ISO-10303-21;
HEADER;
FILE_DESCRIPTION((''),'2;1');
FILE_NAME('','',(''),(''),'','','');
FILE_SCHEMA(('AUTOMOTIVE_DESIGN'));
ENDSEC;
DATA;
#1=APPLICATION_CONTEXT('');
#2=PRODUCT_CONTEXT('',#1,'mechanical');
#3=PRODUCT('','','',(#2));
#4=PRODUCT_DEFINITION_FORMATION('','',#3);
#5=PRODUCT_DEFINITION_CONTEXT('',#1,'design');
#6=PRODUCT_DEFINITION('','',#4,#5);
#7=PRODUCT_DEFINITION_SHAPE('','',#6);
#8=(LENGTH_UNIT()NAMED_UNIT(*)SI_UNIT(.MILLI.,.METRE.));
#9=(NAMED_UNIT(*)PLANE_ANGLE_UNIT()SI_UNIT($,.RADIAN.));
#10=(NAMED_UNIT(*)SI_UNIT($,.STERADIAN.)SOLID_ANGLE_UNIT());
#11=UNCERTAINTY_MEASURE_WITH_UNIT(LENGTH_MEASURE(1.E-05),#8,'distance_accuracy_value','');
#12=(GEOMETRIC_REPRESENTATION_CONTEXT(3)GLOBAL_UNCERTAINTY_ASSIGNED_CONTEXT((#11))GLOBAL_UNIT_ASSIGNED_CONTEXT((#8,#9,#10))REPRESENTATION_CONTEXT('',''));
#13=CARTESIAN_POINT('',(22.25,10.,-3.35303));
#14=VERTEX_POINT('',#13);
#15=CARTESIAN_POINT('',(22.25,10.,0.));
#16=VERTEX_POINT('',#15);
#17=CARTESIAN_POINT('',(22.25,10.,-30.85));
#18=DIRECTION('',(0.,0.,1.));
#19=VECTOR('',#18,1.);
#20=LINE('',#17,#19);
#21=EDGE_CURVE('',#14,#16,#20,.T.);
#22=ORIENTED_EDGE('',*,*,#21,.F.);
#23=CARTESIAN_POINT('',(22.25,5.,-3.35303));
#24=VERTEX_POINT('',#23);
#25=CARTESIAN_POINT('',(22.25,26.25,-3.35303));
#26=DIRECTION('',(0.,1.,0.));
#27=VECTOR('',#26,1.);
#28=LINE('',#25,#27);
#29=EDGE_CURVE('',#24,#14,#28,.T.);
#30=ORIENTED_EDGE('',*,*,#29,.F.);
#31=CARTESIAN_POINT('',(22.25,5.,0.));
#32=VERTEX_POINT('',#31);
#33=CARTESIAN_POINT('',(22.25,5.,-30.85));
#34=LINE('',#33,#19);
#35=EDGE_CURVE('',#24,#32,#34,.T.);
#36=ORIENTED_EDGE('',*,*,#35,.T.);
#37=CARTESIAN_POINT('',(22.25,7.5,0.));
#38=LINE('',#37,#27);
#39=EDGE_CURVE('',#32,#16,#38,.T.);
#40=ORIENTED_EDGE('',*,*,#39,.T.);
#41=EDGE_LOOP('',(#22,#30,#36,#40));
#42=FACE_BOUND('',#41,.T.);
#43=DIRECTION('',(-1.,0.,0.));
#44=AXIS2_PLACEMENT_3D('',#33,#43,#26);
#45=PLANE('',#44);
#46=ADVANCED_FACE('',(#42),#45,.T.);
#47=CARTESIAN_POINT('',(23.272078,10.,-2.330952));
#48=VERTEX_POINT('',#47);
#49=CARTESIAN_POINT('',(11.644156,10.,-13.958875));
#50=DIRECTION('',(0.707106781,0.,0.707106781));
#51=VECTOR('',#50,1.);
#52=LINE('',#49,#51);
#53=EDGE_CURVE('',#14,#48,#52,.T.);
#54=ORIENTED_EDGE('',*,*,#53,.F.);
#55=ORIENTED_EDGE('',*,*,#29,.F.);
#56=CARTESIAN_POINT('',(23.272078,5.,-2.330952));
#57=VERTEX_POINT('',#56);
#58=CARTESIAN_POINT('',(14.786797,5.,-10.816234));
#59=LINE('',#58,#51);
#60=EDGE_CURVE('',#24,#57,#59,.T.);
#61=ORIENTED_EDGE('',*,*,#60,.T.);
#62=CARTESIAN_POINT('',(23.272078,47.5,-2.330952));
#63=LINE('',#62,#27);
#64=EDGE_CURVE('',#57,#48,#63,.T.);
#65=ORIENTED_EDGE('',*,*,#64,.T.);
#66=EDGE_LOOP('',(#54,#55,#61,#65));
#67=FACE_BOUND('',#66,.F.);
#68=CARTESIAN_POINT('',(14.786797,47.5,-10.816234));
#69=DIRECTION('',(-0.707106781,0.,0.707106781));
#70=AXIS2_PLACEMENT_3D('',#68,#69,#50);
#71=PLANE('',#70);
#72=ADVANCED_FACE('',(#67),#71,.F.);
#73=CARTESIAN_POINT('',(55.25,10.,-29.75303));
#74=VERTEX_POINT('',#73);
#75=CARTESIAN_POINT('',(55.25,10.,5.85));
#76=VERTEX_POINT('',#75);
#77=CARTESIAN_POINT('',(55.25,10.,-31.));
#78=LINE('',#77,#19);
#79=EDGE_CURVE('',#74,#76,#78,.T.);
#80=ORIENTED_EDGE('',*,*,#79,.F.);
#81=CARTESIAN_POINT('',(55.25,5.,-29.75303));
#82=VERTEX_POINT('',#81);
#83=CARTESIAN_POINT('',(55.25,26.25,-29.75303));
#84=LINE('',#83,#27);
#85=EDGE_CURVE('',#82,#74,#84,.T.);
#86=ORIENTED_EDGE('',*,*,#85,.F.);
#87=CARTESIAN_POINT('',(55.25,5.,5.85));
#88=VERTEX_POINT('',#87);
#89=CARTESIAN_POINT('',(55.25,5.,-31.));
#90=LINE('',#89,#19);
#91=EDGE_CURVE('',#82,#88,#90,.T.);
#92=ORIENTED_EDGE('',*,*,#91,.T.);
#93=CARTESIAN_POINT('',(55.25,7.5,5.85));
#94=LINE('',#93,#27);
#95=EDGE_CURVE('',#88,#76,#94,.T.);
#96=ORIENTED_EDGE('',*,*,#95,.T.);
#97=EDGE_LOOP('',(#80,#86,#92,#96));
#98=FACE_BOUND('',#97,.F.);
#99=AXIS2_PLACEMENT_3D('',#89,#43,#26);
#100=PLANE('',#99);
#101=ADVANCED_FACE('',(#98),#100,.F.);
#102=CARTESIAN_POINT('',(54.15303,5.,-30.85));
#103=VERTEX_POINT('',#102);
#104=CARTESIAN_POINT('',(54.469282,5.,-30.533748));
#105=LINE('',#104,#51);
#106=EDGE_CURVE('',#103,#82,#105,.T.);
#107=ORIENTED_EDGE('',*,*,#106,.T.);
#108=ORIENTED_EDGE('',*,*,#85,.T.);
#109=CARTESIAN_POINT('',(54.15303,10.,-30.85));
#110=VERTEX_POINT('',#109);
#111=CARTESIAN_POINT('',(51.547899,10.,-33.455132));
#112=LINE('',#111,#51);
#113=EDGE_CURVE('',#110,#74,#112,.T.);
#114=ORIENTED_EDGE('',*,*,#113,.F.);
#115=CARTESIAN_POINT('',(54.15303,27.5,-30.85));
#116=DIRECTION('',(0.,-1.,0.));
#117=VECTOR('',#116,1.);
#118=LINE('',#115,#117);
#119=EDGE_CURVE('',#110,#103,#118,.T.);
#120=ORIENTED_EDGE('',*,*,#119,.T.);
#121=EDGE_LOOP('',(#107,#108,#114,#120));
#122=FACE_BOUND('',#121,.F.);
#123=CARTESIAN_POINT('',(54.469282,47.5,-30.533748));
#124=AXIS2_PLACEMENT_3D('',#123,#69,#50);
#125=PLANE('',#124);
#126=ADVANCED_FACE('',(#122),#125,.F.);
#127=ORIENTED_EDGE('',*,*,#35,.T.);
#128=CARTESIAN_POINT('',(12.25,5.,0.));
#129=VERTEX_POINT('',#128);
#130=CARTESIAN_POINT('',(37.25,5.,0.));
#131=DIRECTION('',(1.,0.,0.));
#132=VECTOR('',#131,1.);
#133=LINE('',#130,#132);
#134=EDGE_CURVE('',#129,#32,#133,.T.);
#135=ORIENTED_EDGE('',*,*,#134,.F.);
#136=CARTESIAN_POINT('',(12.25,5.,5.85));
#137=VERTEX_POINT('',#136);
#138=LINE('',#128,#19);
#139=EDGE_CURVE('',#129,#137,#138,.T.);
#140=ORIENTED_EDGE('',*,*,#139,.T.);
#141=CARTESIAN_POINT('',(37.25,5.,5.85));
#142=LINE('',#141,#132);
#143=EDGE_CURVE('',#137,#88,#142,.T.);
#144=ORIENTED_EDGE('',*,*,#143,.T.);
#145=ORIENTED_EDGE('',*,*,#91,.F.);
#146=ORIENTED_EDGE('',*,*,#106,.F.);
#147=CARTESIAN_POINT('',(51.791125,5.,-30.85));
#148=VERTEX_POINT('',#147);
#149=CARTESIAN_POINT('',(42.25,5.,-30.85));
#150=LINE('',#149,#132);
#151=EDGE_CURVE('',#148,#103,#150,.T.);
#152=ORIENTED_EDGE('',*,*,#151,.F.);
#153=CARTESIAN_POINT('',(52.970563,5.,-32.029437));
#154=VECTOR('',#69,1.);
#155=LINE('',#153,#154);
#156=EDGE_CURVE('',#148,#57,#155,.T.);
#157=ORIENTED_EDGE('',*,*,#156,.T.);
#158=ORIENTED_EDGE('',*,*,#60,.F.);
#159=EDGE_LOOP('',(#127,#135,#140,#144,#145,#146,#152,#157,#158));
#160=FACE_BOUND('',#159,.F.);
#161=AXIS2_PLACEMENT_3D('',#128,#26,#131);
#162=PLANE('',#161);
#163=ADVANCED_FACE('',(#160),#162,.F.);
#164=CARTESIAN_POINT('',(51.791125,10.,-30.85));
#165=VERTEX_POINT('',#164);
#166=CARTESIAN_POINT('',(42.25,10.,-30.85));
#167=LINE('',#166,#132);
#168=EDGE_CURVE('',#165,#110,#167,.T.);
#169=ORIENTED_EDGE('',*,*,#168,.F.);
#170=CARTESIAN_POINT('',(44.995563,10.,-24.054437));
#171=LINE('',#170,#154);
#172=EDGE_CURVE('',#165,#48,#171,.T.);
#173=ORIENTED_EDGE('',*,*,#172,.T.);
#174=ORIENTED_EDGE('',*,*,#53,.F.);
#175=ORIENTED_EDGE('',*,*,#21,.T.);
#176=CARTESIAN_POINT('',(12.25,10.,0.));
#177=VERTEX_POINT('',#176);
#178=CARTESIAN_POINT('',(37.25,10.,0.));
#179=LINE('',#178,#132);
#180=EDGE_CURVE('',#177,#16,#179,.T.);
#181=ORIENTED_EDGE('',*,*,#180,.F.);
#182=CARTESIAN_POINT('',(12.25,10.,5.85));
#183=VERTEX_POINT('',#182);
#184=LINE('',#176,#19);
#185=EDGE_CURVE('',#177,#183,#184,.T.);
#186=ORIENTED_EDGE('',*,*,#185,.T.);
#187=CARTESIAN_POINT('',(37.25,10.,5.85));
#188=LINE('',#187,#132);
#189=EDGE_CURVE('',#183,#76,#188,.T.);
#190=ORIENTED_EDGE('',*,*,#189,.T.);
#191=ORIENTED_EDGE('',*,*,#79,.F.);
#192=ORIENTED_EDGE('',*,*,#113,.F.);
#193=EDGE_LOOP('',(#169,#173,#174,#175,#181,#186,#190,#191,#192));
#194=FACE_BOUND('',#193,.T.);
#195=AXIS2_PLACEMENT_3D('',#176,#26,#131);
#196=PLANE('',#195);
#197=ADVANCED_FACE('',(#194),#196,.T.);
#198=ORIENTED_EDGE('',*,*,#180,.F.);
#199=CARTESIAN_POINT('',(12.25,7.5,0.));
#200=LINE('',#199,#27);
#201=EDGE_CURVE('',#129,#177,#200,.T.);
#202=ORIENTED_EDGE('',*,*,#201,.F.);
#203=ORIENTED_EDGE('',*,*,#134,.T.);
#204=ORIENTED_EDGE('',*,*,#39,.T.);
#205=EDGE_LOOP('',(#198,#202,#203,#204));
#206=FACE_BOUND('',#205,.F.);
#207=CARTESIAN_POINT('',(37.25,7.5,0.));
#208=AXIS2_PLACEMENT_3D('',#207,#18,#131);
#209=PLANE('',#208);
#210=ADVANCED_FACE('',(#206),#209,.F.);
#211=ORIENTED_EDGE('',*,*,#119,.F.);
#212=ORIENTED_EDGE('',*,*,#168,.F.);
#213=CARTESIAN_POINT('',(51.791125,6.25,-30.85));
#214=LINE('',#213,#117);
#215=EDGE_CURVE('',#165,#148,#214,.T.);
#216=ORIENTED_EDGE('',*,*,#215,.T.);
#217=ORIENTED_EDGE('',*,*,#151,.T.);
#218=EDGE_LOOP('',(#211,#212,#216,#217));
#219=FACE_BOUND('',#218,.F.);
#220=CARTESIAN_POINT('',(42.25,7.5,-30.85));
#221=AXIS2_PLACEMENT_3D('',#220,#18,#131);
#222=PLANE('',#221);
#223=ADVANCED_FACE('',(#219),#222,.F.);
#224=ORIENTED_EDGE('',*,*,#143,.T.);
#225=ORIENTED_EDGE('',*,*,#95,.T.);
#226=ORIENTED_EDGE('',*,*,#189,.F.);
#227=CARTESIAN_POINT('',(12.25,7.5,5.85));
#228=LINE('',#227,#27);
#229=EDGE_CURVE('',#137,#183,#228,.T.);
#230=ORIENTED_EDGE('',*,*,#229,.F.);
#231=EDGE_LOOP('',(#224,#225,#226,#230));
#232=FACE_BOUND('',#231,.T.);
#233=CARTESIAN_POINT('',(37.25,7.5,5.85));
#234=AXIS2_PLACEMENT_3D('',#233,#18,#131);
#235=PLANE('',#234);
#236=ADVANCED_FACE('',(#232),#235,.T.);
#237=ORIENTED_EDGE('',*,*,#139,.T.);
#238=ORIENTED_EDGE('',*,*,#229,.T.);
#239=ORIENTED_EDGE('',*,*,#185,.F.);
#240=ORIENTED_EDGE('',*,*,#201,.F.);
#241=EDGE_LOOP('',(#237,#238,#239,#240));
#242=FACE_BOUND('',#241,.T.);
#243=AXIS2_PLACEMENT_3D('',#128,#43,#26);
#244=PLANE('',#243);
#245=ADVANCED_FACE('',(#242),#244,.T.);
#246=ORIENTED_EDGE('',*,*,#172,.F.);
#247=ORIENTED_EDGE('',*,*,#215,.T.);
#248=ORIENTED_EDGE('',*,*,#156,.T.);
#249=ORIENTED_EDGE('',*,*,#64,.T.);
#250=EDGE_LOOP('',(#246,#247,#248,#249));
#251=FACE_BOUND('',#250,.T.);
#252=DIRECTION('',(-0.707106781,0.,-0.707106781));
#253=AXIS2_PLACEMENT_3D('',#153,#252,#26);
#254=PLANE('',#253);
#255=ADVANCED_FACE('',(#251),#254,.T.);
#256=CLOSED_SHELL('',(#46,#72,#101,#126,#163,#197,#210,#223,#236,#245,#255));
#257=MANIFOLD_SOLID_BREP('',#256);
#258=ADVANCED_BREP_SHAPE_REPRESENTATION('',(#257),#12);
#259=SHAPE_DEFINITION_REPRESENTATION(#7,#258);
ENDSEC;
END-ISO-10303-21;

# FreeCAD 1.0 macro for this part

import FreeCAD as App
import Part
import Sketcher
Q = App.Units.Quantity


def add_polygon(sketch, points):
    """Adds a closed chain of lines whose ends are joined by coincident constraints."""
    first, n = sketch.GeometryCount, len(points)
    for a, b in zip(points, points[1:] + points[:1]):
        sketch.addGeometry(Part.LineSegment(App.Vector(*a, 0), App.Vector(*b, 0)), False)
    for i in range(n):
        sketch.addConstraint(Sketcher.Constraint("Coincident", first + i, 2, first + (i + 1) % n, 1))

doc = App.newDocument("Part")
body = doc.addObject("PartDesign::Body", "Body")

# Sketch on XY plane
sketch1 = doc.addObject("Sketcher::SketchObject", "Sketch")
body.addObject(sketch1)
sketch1.AttachmentSupport = (doc.XY_Plane, [""])
sketch1.MapMode = "FlatFace"
add_polygon(sketch1, [(0, 85), (0, 0), (5, 0), (5, 85)])  # lines 0-3
sketch1.addConstraint([
    Sketcher.Constraint("Vertical", 0),
    Sketcher.Constraint("Horizontal", 1),
    Sketcher.Constraint("Vertical", 2),
    Sketcher.Constraint("Horizontal", 3),
    Sketcher.Constraint("Coincident", 0, 2, -1, 1),
    Sketcher.Constraint("DistanceX", 1, 1, 1, 2, Q("5 mm")),
    Sketcher.Constraint("DistanceY", 0, 2, 0, 1, Q("85 mm")),
])
pad1 = doc.addObject("PartDesign::Pad", "Pad")
body.addObject(pad1)
pad1.Profile = sketch1
pad1.Length = 42
body2 = doc.addObject("PartDesign::Body", "Body001")
doc.recompute()

body.Placement = App.Placement(App.Vector(82.4, 5, -62), App.Rotation(App.Vector(0, 1, 0), 315))
boolean = doc.addObject("PartDesign::Boolean", "Boolean")
body2.addObject(boolean)
boolean.Type = "Fuse"
boolean.addObjects([body])
body3 = doc.addObject("PartDesign::Body", "Body002")

# Sketch on XY plane
sketch2 = doc.addObject("Sketcher::SketchObject", "Sketch001")
body3.addObject(sketch2)
sketch2.AttachmentSupport = (doc.getObject("XY_Plane002"), [""])
sketch2.MapMode = "FlatFace"
sketch2.AttachmentOffset = App.Placement(App.Vector(0, 0, -31), App.Rotation())
add_polygon(sketch2, [(55, 10), (55, 5), (62, 5), (62, 10)])  # lines 0-3
sketch2.addConstraint([
    Sketcher.Constraint("Vertical", 0),
    Sketcher.Constraint("Horizontal", 1),
    Sketcher.Constraint("Vertical", 2),
    Sketcher.Constraint("Horizontal", 3),
    Sketcher.Constraint("DistanceX", 1, 1, 1, 2, Q("7 mm")),
    Sketcher.Constraint("DistanceY", 0, 2, 0, 1, Q("5 mm")),
    Sketcher.Constraint("DistanceY", -1, 1, 0, 2, Q("5 mm")),
    Sketcher.Constraint("DistanceX", -1, 1, 0, 2, Q("55.25 mm")),
])
pad2 = doc.addObject("PartDesign::Pad", "Pad001")
body3.addObject(pad2)
pad2.Profile = sketch2
pad2.Length = 36.85
body4 = doc.addObject("PartDesign::Body", "Body003")

# Sketch on XY plane
sketch3 = doc.addObject("Sketcher::SketchObject", "Sketch002")
body4.addObject(sketch3)
sketch3.AttachmentSupport = (doc.getObject("XY_Plane003"), [""])
sketch3.MapMode = "FlatFace"
add_polygon(sketch3, [(12, 10), (12, 5), (62, 5), (62, 10)])  # lines 0-3
sketch3.addConstraint([
    Sketcher.Constraint("Vertical", 0),
    Sketcher.Constraint("Horizontal", 1),
    Sketcher.Constraint("Vertical", 2),
    Sketcher.Constraint("Horizontal", 3),
    Sketcher.Constraint("DistanceX", 1, 1, 1, 2, Q("50 mm")),
    Sketcher.Constraint("DistanceY", 0, 2, 0, 1, Q("5 mm")),
    Sketcher.Constraint("DistanceY", -1, 1, 0, 2, Q("5 mm")),
    Sketcher.Constraint("DistanceX", -1, 1, 0, 2, Q("12.25 mm")),
])
pad3 = doc.addObject("PartDesign::Pad", "Pad002")
body4.addObject(pad3)
pad3.Profile = sketch3
pad3.Length = 5.85
body5 = doc.addObject("PartDesign::Body", "Body004")

# Sketch on XY plane
sketch4 = doc.addObject("Sketcher::SketchObject", "Sketch003")
body5.addObject(sketch4)
sketch4.AttachmentSupport = (doc.getObject("XY_Plane004"), [""])
sketch4.MapMode = "FlatFace"
add_polygon(sketch4, [(0, 85), (0, 0), (24, 0), (24, 85)])  # lines 0-3
sketch4.addConstraint([
    Sketcher.Constraint("Vertical", 0),
    Sketcher.Constraint("Horizontal", 1),
    Sketcher.Constraint("Vertical", 2),
    Sketcher.Constraint("Horizontal", 3),
    Sketcher.Constraint("Coincident", 0, 2, -1, 1),
    Sketcher.Constraint("DistanceX", 1, 1, 1, 2, Q("24 mm")),
    Sketcher.Constraint("DistanceY", 0, 2, 0, 1, Q("85 mm")),
])
pad4 = doc.addObject("PartDesign::Pad", "Pad003")
body5.addObject(pad4)
pad4.Profile = sketch4
pad4.Length = 42
body6 = doc.addObject("PartDesign::Body", "Body005")
doc.recompute()

body5.Placement = App.Placement(App.Vector(36, 5, -49), App.Rotation(App.Vector(0, 1, 0), 315))
boolean2 = doc.addObject("PartDesign::Boolean", "Boolean001")
body6.addObject(boolean2)
boolean2.Type = "Fuse"
boolean2.addObjects([body5])
body7 = doc.addObject("PartDesign::Body", "Body006")

# Sketch on XY plane
sketch5 = doc.addObject("Sketcher::SketchObject", "Sketch004")
body7.addObject(sketch5)
sketch5.AttachmentSupport = (doc.getObject("XY_Plane006"), [""])
sketch5.MapMode = "FlatFace"
sketch5.AttachmentOffset = App.Placement(App.Vector(0, 0, -30.85), App.Rotation())
add_polygon(sketch5, [(22, 10), (22, 5), (62, 5), (62, 10)])  # lines 0-3
sketch5.addConstraint([
    Sketcher.Constraint("Vertical", 0),
    Sketcher.Constraint("Horizontal", 1),
    Sketcher.Constraint("Vertical", 2),
    Sketcher.Constraint("Horizontal", 3),
    Sketcher.Constraint("DistanceX", 1, 1, 1, 2, Q("40 mm")),
    Sketcher.Constraint("DistanceY", 0, 2, 0, 1, Q("5 mm")),
    Sketcher.Constraint("DistanceY", -1, 1, 0, 2, Q("5 mm")),
    Sketcher.Constraint("DistanceX", -1, 1, 0, 2, Q("22.25 mm")),
])
pad5 = doc.addObject("PartDesign::Pad", "Pad004")
body7.addObject(pad5)
pad5.Profile = sketch5
pad5.Length = 30.85
doc.recompute()

boolean3 = doc.addObject("PartDesign::Boolean", "Boolean002")
body7.addObject(boolean3)
boolean3.Type = "Cut"
boolean3.addObjects([body6])
doc.recompute()

boolean4 = doc.addObject("PartDesign::Boolean", "Boolean003")
body7.addObject(boolean4)
boolean4.Type = "Fuse"
boolean4.addObjects([body4])
doc.recompute()

boolean5 = doc.addObject("PartDesign::Boolean", "Boolean004")
body7.addObject(boolean5)
boolean5.Type = "Cut"
boolean5.addObjects([body3])
doc.recompute()

boolean6 = doc.addObject("PartDesign::Boolean", "Boolean005")
body7.addObject(boolean6)
boolean6.Type = "Cut"
boolean6.addObjects([body2])

doc.recompute()
